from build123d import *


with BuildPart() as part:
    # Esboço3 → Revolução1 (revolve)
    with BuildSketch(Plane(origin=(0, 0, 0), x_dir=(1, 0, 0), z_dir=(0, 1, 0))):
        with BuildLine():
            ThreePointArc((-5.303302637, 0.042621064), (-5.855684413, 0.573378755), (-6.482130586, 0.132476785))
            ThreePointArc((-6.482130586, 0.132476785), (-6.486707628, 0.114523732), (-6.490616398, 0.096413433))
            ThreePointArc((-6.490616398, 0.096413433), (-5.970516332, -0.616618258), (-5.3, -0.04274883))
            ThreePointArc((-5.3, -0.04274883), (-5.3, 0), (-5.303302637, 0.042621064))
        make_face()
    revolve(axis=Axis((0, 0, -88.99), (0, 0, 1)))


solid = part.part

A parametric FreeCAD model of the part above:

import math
import FreeCAD as App
import Part
import Sketcher
from FreeCAD import Vector
Q = App.Units.Quantity

doc = App.newDocument("Part")
body = doc.addObject("PartDesign::Body", "Body")

# Sketch on XZ plane
sketch1 = body.newObject("Sketcher::SketchObject", "Sketch")
sketch1.AttachmentSupport = (doc.getObject("XZ_Plane"), [""])
sketch1.MapMode = "FlatFace"
sketch1.addGeometry(Part.ArcOfCircle(Part.Circle(Vector(-5.901454, 0.027078, 0), Vector(0, 0, 1), 0.602198), math.radians(-164.635806), math.radians(-6.646353)), False)
sketch1.addGeometry(Part.ArcOfCircle(Part.Circle(Vector(-6, 0, 0), Vector(0, 0, 1), 0.5), math.radians(-168.882198), math.radians(-164.635806)), False)
sketch1.addGeometry(Part.ArcOfCircle(Part.Circle(Vector(-5.900725, 0.019509, 0), Vector(0, 0, 1), 0.601174), math.radians(2.215451), math.radians(191.117803)), False)
sketch1.addGeometry(Part.ArcOfCircle(Part.Circle(Vector(-5.852507, 0.021374, 0), Vector(0, 0, 1), 0.552921), math.radians(-6.646354), math.radians(2.215451)), False)
sketch1.addConstraint(Sketcher.Constraint("Coincident", 0, 1, 1, 2))
sketch1.addConstraint(Sketcher.Constraint("Coincident", 1, 1, 2, 2))
sketch1.addConstraint(Sketcher.Constraint("Coincident", 2, 1, 3, 2))
sketch1.addConstraint(Sketcher.Constraint("Coincident", 3, 1, 0, 2))
sketch1.addConstraint(Sketcher.Constraint("PointOnObject", 1, 3, -1))
sketch1.addConstraint(Sketcher.Constraint("Radius", 1, Q("0.5 mm")))
sketch1.addConstraint(Sketcher.Constraint("DistanceX", 1, 3, -1, 1, Q("6 mm")))
sketch1.addConstraint(Sketcher.Constraint("DistanceX", 2, 1, -1, 1, Q("5.3 mm")))
sketch1.addConstraint(Sketcher.Constraint("Radius", 0, Q("0.602198 mm")))
sketch1.addConstraint(Sketcher.Constraint("Radius", 3, Q("0.552921 mm")))
sketch1.addConstraint(Sketcher.Constraint("Radius", 2, Q("0.601174 mm")))
sketch1.addConstraint(Sketcher.Constraint("DistanceY", 3, 1, 0, 3, Q("0.069699 mm")))
sketch1.addConstraint(Sketcher.Constraint("DistanceY", -1, 1, 2, 3, Q("0.019509 mm")))
sketch1.addConstraint(Sketcher.Constraint("DistanceX", 0, 1, -1, 1, Q("6.482131 mm")))
sketch1.addConstraint(Sketcher.Constraint("DistanceY", 3, 1, -1, 1, Q("0.042621 mm")))
sketch1.addConstraint(Sketcher.Constraint("DistanceX", 1, 1, 2, 3, Q("0.589892 mm")))
revolution = body.newObject("PartDesign::Revolution", "Revolution")
revolution.Profile = sketch1
revolution.ReferenceAxis = (sketch1, ["V_Axis"])
revolution.Angle = 360

doc.recompute()
